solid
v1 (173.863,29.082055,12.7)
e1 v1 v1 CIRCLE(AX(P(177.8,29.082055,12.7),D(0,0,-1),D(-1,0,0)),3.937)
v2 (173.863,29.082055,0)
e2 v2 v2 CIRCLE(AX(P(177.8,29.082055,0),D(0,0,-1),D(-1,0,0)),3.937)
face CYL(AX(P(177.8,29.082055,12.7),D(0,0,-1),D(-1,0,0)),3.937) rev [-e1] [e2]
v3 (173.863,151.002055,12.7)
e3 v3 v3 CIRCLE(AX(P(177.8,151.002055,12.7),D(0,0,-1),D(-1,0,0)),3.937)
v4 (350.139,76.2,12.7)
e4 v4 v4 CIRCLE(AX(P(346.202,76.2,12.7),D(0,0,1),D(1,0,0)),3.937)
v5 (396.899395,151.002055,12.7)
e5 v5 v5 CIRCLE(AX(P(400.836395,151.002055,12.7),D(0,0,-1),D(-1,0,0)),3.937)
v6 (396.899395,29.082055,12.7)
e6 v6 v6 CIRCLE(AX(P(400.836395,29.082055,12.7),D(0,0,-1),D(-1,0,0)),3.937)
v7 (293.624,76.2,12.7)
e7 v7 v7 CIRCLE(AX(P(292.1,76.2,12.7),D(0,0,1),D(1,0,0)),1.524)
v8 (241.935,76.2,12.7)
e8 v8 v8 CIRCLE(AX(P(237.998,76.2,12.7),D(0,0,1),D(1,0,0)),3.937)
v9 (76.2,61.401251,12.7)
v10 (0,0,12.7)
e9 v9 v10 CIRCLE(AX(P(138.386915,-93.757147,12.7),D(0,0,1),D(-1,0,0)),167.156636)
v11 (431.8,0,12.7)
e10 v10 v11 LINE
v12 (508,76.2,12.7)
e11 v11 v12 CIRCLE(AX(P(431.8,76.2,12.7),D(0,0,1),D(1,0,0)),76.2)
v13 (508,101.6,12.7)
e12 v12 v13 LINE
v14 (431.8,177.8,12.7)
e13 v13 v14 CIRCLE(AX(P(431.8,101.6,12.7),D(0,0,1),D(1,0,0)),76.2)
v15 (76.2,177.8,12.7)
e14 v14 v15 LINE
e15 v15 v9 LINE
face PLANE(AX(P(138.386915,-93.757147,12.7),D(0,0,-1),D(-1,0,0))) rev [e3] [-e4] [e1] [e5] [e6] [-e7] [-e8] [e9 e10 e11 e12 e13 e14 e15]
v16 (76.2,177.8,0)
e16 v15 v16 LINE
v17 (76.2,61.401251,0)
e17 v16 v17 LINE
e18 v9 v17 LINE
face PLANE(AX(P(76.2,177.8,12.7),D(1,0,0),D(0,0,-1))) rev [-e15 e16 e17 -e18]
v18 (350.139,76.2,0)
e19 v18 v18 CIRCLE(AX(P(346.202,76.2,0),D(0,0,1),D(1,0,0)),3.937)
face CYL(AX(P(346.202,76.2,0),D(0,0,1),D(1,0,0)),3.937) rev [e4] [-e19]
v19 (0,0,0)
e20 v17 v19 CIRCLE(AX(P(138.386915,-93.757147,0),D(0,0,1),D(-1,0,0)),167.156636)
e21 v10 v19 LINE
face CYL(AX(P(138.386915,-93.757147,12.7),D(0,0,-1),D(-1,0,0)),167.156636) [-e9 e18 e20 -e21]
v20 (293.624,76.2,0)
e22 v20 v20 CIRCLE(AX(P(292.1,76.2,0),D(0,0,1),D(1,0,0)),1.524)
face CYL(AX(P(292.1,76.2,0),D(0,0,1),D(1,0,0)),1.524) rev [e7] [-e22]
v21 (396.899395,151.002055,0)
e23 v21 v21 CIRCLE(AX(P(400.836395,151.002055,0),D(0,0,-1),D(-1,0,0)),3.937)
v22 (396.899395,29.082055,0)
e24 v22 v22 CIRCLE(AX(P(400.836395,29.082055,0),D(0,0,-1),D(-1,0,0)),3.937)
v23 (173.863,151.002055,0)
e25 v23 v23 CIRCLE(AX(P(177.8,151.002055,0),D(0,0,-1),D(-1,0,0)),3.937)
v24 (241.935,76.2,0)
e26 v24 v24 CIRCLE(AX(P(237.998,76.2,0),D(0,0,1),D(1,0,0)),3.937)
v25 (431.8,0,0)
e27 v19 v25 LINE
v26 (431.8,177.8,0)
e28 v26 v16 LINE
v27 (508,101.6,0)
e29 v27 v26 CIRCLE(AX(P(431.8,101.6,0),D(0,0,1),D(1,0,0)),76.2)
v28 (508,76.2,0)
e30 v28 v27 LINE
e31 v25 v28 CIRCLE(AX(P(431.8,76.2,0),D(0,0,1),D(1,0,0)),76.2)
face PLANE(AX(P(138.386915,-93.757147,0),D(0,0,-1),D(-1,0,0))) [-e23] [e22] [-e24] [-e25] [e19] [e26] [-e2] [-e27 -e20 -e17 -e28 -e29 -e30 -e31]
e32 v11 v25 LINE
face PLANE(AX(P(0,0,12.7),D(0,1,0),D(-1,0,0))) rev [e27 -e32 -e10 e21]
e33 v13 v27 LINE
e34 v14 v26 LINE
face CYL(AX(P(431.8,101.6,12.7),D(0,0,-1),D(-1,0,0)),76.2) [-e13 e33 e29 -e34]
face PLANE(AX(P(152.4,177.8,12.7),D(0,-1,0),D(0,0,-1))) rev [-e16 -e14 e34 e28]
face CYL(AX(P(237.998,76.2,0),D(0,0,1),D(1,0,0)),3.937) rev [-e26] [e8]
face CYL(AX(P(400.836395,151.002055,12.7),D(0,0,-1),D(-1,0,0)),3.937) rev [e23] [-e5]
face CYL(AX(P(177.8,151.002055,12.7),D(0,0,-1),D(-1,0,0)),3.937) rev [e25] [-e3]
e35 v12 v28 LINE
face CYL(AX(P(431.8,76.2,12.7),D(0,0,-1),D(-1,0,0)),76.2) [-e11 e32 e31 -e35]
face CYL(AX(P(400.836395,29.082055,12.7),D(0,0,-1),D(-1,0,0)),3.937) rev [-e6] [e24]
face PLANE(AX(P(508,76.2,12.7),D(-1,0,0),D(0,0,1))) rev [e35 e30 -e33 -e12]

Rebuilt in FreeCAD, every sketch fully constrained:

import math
import FreeCAD as App
import Part
import Sketcher
Q = App.Units.Quantity

doc = App.newDocument("Part")
params = doc.addObject("Spreadsheet::Sheet", "Params")
for row, (alias, value) in enumerate([
    ("sketch1_radius", "3 in"),
    ("sketch1_width", "17 in"),
    ("sketch1_width2", "14 in"),
    ("sketch1_height", "1 in"),
    ("pad1_length", "0.5 in"),
    ("sketch2_diameter", "0.31 in"),
    ("sketch3_diameter", "0.12 in"),
    ("sketch3_diameter2", "0.31 in"),
], start=1):
    params.set(f"A{row}", alias)
    params.set(f"B{row}", "=" + value)
    params.setAlias(f"B{row}", alias)

body = doc.addObject("PartDesign::Body", "Body")

sketch1 = body.newObject("Sketcher::SketchObject", "Sketch")
sketch1.AttachmentSupport = (doc.getObject("XY_Plane"), [""])
sketch1.MapMode = "FlatFace"
sketch1.addGeometry(Part.LineSegment(App.Vector(0, 0, 0), App.Vector(432, 0, 0)), False)
sketch1.addGeometry(Part.ArcOfCircle(Part.Circle(App.Vector(432, 76, 0), App.Vector(0, 0, 1), 76), math.radians(-90), math.radians(0)), False)
sketch1.addGeometry(Part.LineSegment(App.Vector(508, 76, 0), App.Vector(508, 102, 0)), False)
sketch1.addGeometry(Part.ArcOfCircle(Part.Circle(App.Vector(432, 102, 0), App.Vector(0, 0, 1), 76), math.radians(0), math.radians(90)), False)
sketch1.addGeometry(Part.LineSegment(App.Vector(432, 178, 0), App.Vector(76, 178, 0)), False)
sketch1.addGeometry(Part.LineSegment(App.Vector(76, 178, 0), App.Vector(76, 61, 0)), False)
sketch1.addGeometry(Part.ArcOfCircle(Part.Circle(App.Vector(138, -94, 0), App.Vector(0, 0, 1), 167), math.radians(112), math.radians(146)), False)
sketch1.addConstraint(Sketcher.Constraint("Tangent", 0, 2, 1, 1))
sketch1.addConstraint(Sketcher.Constraint("Tangent", 1, 2, 2, 1))
sketch1.addConstraint(Sketcher.Constraint("Tangent", 2, 2, 3, 1))
sketch1.addConstraint(Sketcher.Constraint("Tangent", 3, 2, 4, 1))
sketch1.addConstraint(Sketcher.Constraint("Coincident", 4, 2, 5, 1))
sketch1.addConstraint(Sketcher.Constraint("Coincident", 5, 2, 6, 1))
sketch1.addConstraint(Sketcher.Constraint("Coincident", 6, 2, 0, 1))
sketch1.addConstraint(Sketcher.Constraint("Horizontal", 0))
sketch1.addConstraint(Sketcher.Constraint("Vertical", 2))
sketch1.addConstraint(Sketcher.Constraint("Horizontal", 4))
sketch1.addConstraint(Sketcher.Constraint("Vertical", 5))
sketch1.addConstraint(Sketcher.Constraint("Coincident", 6, 2, -1, 1))
sketch1.addConstraint(Sketcher.Constraint("Equal", 1, 3))
sketch1.addConstraint(Sketcher.Constraint("Radius", 1, Q("3 in")))
sketch1.addConstraint(Sketcher.Constraint("DistanceX", 0, 1, 0, 2, Q("17 in")))
sketch1.addConstraint(Sketcher.Constraint("DistanceX", 4, 2, 4, 1, Q("14 in")))
sketch1.addConstraint(Sketcher.Constraint("DistanceY", 2, 1, 2, 2, Q("1 in")))
sketch1.addConstraint(Sketcher.Constraint("Radius", 6, 167.156636))
sketch1.addConstraint(Sketcher.Constraint("DistanceY", 5, 2, 5, 1, 116.398749))
sketch1.setExpression("Constraints[13]", "Params.sketch1_radius")
sketch1.setExpression("Constraints[14]", "Params.sketch1_width")
sketch1.setExpression("Constraints[15]", "Params.sketch1_width2")
sketch1.setExpression("Constraints[16]", "Params.sketch1_height")
pad1 = body.newObject("PartDesign::Pad", "Pad")
pad1.Profile = sketch1
pad1.setExpression("Length", "Params.pad1_length")

sketch2 = body.newObject("Sketcher::SketchObject", "Sketch001")
sketch2.AttachmentSupport = (doc.getObject("XY_Plane"), [""])
sketch2.MapMode = "FlatFace"
sketch2.addGeometry(Part.Circle(App.Vector(177.8, 29.1, 0), App.Vector(0, 0, 1), 3.9), False)
sketch2.addGeometry(Part.Circle(App.Vector(400.8, 29.1, 0), App.Vector(0, 0, 1), 3.9), False)
sketch2.addGeometry(Part.Circle(App.Vector(400.8, 151, 0), App.Vector(0, 0, 1), 3.9), False)
sketch2.addGeometry(Part.Circle(App.Vector(177.8, 151, 0), App.Vector(0, 0, 1), 3.9), False)
sketch2.addConstraint(Sketcher.Constraint("Equal", 0, 1))
sketch2.addConstraint(Sketcher.Constraint("Equal", 1, 2))
sketch2.addConstraint(Sketcher.Constraint("Equal", 2, 3))
sketch2.addConstraint(Sketcher.Constraint("Horizontal", 0, 3, 1, 3))
sketch2.addConstraint(Sketcher.Constraint("Horizontal", 2, 3, 3, 3))
sketch2.addConstraint(Sketcher.Constraint("Vertical", 1, 3, 2, 3))
sketch2.addConstraint(Sketcher.Constraint("Vertical", 0, 3, 3, 3))
sketch2.addConstraint(Sketcher.Constraint("Diameter", 0, Q("0.31 in")))
sketch2.addConstraint(Sketcher.Constraint("DistanceX", -1, 1, 0, 3, Q("7 in")))
sketch2.addConstraint(Sketcher.Constraint("DistanceY", 1, 3, 2, 3, Q("4.8 in")))
sketch2.addConstraint(Sketcher.Constraint("DistanceY", -1, 1, 0, 3, 29.082055))
sketch2.addConstraint(Sketcher.Constraint("DistanceX", -1, 1, 1, 3, 400.836395))
sketch2.setExpression("Constraints[7]", "Params.sketch2_diameter")
pocket1 = body.newObject("PartDesign::Pocket", "Pocket")
pocket1.Profile = sketch2
pocket1.Type = "ThroughAll"
pocket1.Reversed = True

sketch3 = body.newObject("Sketcher::SketchObject", "Sketch002")
sketch3.AttachmentSupport = (doc.getObject("XY_Plane"), [""])
sketch3.MapMode = "FlatFace"
sketch3.AttachmentOffset = App.Placement(App.Vector(0, 0, 0.5 * 25.4), App.Rotation())
sketch3.addGeometry(Part.Circle(App.Vector(292.1, 76.2, 0), App.Vector(0, 0, 1), 1.5), False)
sketch3.addGeometry(Part.Circle(App.Vector(238, 76.2, 0), App.Vector(0, 0, 1), 3.9), False)
sketch3.addGeometry(Part.Circle(App.Vector(346.2, 76.2, 0), App.Vector(0, 0, 1), 3.9), False)
sketch3.addConstraint(Sketcher.Constraint("Equal", 1, 2))
sketch3.addConstraint(Sketcher.Constraint("Horizontal", 0, 3, 1, 3))
sketch3.addConstraint(Sketcher.Constraint("Horizontal", 1, 3, 2, 3))
sketch3.addConstraint(Sketcher.Constraint("Diameter", 0, Q("0.12 in")))
sketch3.addConstraint(Sketcher.Constraint("Diameter", 1, Q("0.31 in")))
sketch3.addConstraint(Sketcher.Constraint("DistanceY", -1, 1, 0, 3, Q("3 in")))
sketch3.addConstraint(Sketcher.Constraint("DistanceX", -1, 1, 0, 3, Q("11.5 in")))
sketch3.addConstraint(Sketcher.Constraint("DistanceX", -1, 1, 1, 3, Q("9.37 in")))
sketch3.addConstraint(Sketcher.Constraint("DistanceX", -1, 1, 2, 3, Q("13.63 in")))
sketch3.setExpression("Constraints[3]", "Params.sketch3_diameter")
sketch3.setExpression("Constraints[4]", "Params.sketch3_diameter2")
pocket2 = body.newObject("PartDesign::Pocket", "Pocket001")
pocket2.Profile = sketch3
pocket2.Type = "ThroughAll"

doc.recompute()
